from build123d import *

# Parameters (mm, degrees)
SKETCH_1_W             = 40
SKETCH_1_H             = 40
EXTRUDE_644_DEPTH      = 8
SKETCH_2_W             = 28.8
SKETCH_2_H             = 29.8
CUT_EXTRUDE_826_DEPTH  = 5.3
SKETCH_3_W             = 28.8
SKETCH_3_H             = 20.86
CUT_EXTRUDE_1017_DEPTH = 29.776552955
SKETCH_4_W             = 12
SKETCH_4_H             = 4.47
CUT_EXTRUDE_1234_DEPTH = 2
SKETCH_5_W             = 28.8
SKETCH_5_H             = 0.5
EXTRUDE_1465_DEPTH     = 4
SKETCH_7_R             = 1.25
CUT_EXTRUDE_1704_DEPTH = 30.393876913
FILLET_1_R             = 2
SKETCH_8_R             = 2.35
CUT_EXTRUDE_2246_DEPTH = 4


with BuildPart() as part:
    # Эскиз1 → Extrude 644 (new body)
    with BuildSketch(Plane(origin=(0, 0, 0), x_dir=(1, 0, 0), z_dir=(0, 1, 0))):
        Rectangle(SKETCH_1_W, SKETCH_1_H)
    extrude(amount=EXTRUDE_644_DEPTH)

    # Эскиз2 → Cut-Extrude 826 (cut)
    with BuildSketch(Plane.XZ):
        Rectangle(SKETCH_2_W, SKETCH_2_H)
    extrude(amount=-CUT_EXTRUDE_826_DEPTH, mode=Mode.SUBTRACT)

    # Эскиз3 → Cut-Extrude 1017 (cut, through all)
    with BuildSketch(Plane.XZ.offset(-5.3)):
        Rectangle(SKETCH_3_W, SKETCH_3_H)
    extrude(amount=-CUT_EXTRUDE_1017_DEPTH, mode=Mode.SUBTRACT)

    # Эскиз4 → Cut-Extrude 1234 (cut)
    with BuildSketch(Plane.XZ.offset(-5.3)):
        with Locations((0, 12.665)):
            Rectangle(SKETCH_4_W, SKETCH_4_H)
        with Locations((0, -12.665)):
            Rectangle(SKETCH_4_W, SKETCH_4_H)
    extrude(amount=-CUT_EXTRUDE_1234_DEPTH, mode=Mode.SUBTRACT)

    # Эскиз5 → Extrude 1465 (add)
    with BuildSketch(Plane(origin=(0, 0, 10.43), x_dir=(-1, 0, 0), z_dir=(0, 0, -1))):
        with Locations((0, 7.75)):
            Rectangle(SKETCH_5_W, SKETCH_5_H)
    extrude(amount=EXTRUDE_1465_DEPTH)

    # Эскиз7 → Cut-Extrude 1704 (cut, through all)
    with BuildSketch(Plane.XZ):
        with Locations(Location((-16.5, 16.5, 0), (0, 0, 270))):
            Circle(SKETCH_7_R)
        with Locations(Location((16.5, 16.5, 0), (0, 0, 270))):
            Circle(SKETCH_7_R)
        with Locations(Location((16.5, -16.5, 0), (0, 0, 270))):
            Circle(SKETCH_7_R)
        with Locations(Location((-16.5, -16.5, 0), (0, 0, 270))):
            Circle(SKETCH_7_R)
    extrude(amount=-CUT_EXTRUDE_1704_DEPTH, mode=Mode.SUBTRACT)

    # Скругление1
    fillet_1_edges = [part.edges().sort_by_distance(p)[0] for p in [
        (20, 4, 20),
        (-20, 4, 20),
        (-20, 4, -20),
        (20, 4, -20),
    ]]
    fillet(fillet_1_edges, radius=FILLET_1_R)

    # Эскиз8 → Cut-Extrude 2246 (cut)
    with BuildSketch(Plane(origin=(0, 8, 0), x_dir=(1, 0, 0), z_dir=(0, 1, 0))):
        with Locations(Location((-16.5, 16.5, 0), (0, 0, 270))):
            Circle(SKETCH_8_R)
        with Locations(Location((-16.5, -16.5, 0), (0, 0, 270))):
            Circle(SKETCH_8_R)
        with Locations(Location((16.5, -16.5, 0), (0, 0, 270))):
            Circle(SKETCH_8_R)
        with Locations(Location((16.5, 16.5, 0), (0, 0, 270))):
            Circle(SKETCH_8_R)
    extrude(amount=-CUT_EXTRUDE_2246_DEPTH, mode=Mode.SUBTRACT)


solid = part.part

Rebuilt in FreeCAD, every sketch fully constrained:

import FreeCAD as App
import Part
import Sketcher
Q = App.Units.Quantity


def edges_at(feature, points):
    """Names of the edges that pass closest to the given points."""
    edges = feature.Shape.Edges
    near = lambda p: min(range(len(edges)), key=lambda i: edges[i].distToShape(Part.Vertex(*p))[0])
    return sorted({f"Edge{near(p) + 1}" for p in points})

doc = App.newDocument("Part")
params = doc.addObject("Spreadsheet::Sheet", "Params")
for row, (alias, value) in enumerate([
    ("sketch1_width", "40 mm"),
    ("pad1_length", "8 mm"),
    ("sketch2_width", "28.8 mm"),
    ("sketch2_height", "29.8 mm"),
    ("pocket1_length", "5.3 mm"),
    ("sketch3_width", "28.8 mm"),
    ("sketch3_height", "20.86 mm"),
    ("sketch4_width", "12 mm"),
    ("sketch4_height", "4.47 mm"),
    ("pocket3_length", "2 mm"),
    ("sketch5_width", "28.8 mm"),
    ("sketch5_height", "0.5 mm"),
    ("pad2_length", "4 mm"),
    ("sketch6_diameter", "2.5 mm"),
    ("fillet_radius", "2 mm"),
    ("sketch7_diameter", "4.7 mm"),
    ("pocket5_length", "4 mm"),
], start=1):
    params.set(f"A{row}", alias)
    params.set(f"B{row}", "=" + value)
    params.setAlias(f"B{row}", alias)

body = doc.addObject("PartDesign::Body", "Body")

# Sketch on XZ plane
sketch1 = body.newObject("Sketcher::SketchObject", "Sketch")
sketch1.AttachmentSupport = (doc.getObject("XZ_Plane"), [""])
sketch1.MapMode = "FlatFace"
sketch1.addGeometry([
    Part.LineSegment(App.Vector(-20, -20, 0), App.Vector(-20, 20, 0)),
    Part.LineSegment(App.Vector(-20, 20, 0), App.Vector(20, 20, 0)),
    Part.LineSegment(App.Vector(20, 20, 0), App.Vector(20, -20, 0)),
    Part.LineSegment(App.Vector(20, -20, 0), App.Vector(-20, -20, 0)),
], False)
sketch1.addConstraint([
    Sketcher.Constraint("Coincident", 0, 2, 1, 1),
    Sketcher.Constraint("Coincident", 1, 2, 2, 1),
    Sketcher.Constraint("Coincident", 2, 2, 3, 1),
    Sketcher.Constraint("Coincident", 3, 2, 0, 1),
    Sketcher.Constraint("Vertical", 0),
    Sketcher.Constraint("Horizontal", 1),
    Sketcher.Constraint("Vertical", 2),
    Sketcher.Constraint("Horizontal", 3),
    Sketcher.Constraint("Symmetric", 0, 2, 2, 2, -1, 1),
    Sketcher.Constraint("Equal", 3, 0),
    Sketcher.Constraint("DistanceX", 1, 1, 1, 2, Q("40 mm")),
])
sketch1.setExpression("Constraints[10]", "Params.sketch1_width")
pad1 = body.newObject("PartDesign::Pad", "Pad")
pad1.Profile = sketch1
pad1.setExpression("Length", "Params.pad1_length")
pad1.Reversed = True

# Sketch on XZ plane
sketch2 = body.newObject("Sketcher::SketchObject", "Sketch001")
sketch2.AttachmentSupport = (doc.getObject("XZ_Plane"), [""])
sketch2.MapMode = "FlatFace"
sketch2.addGeometry([
    Part.LineSegment(App.Vector(-14.4, 14.9, 0), App.Vector(-14.4, -14.9, 0)),
    Part.LineSegment(App.Vector(-14.4, -14.9, 0), App.Vector(14.4, -14.9, 0)),
    Part.LineSegment(App.Vector(14.4, -14.9, 0), App.Vector(14.4, 14.9, 0)),
    Part.LineSegment(App.Vector(14.4, 14.9, 0), App.Vector(-14.4, 14.9, 0)),
], False)
sketch2.addConstraint([
    Sketcher.Constraint("Coincident", 0, 2, 1, 1),
    Sketcher.Constraint("Coincident", 1, 2, 2, 1),
    Sketcher.Constraint("Coincident", 2, 2, 3, 1),
    Sketcher.Constraint("Coincident", 3, 2, 0, 1),
    Sketcher.Constraint("Vertical", 0),
    Sketcher.Constraint("Horizontal", 1),
    Sketcher.Constraint("Vertical", 2),
    Sketcher.Constraint("Horizontal", 3),
    Sketcher.Constraint("Symmetric", 0, 2, 2, 2, -1, 1),
    Sketcher.Constraint("DistanceX", 1, 1, 1, 2, Q("28.8 mm")),
    Sketcher.Constraint("DistanceY", 0, 2, 0, 1, Q("29.8 mm")),
])
sketch2.setExpression("Constraints[9]", "Params.sketch2_width")
sketch2.setExpression("Constraints[10]", "Params.sketch2_height")
pocket1 = body.newObject("PartDesign::Pocket", "Pocket")
pocket1.Profile = sketch2
pocket1.setExpression("Length", "Params.pocket1_length")

# Sketch on XZ plane
sketch3 = body.newObject("Sketcher::SketchObject", "Sketch002")
sketch3.AttachmentSupport = (doc.getObject("XZ_Plane"), [""])
sketch3.MapMode = "FlatFace"
sketch3.AttachmentOffset = App.Placement(App.Vector(0, 0, -5.3), App.Rotation())
sketch3.addGeometry([
    Part.LineSegment(App.Vector(-14.4, 10.43, 0), App.Vector(-14.4, -10.43, 0)),
    Part.LineSegment(App.Vector(-14.4, -10.43, 0), App.Vector(14.4, -10.43, 0)),
    Part.LineSegment(App.Vector(14.4, -10.43, 0), App.Vector(14.4, 10.43, 0)),
    Part.LineSegment(App.Vector(14.4, 10.43, 0), App.Vector(-14.4, 10.43, 0)),
], False)
sketch3.addConstraint([
    Sketcher.Constraint("Coincident", 0, 2, 1, 1),
    Sketcher.Constraint("Coincident", 1, 2, 2, 1),
    Sketcher.Constraint("Coincident", 2, 2, 3, 1),
    Sketcher.Constraint("Coincident", 3, 2, 0, 1),
    Sketcher.Constraint("Vertical", 0),
    Sketcher.Constraint("Horizontal", 1),
    Sketcher.Constraint("Vertical", 2),
    Sketcher.Constraint("Horizontal", 3),
    Sketcher.Constraint("Symmetric", 0, 2, 2, 2, -1, 1),
    Sketcher.Constraint("DistanceX", 1, 1, 1, 2, Q("28.8 mm")),
    Sketcher.Constraint("DistanceY", 0, 2, 0, 1, Q("20.86 mm")),
])
sketch3.setExpression("Constraints[9]", "Params.sketch3_width")
sketch3.setExpression("Constraints[10]", "Params.sketch3_height")
pocket2 = body.newObject("PartDesign::Pocket", "Pocket001")
pocket2.Profile = sketch3
pocket2.Type = "ThroughAll"

# Sketch on XZ plane
sketch4 = body.newObject("Sketcher::SketchObject", "Sketch003")
sketch4.AttachmentSupport = (doc.getObject("XZ_Plane"), [""])
sketch4.MapMode = "FlatFace"
sketch4.AttachmentOffset = App.Placement(App.Vector(0, 0, -5.3), App.Rotation())
sketch4.addGeometry([
    Part.LineSegment(App.Vector(-6, 14.9, 0), App.Vector(-6, 10.43, 0)),  # 0
    Part.LineSegment(App.Vector(-6, 10.43, 0), App.Vector(6, 10.43, 0)),  # 1
    Part.LineSegment(App.Vector(6, 10.43, 0), App.Vector(6, 14.9, 0)),  # 2
    Part.LineSegment(App.Vector(6, 14.9, 0), App.Vector(-6, 14.9, 0)),  # 3
    Part.LineSegment(App.Vector(-6, -10.43, 0), App.Vector(-6, -14.9, 0)),  # 4
    Part.LineSegment(App.Vector(-6, -14.9, 0), App.Vector(6, -14.9, 0)),  # 5
    Part.LineSegment(App.Vector(6, -14.9, 0), App.Vector(6, -10.43, 0)),  # 6
    Part.LineSegment(App.Vector(6, -10.43, 0), App.Vector(-6, -10.43, 0)),  # 7
], False)
sketch4.addConstraint([
    Sketcher.Constraint("Coincident", 0, 2, 1, 1),
    Sketcher.Constraint("Coincident", 1, 2, 2, 1),
    Sketcher.Constraint("Coincident", 2, 2, 3, 1),
    Sketcher.Constraint("Coincident", 3, 2, 0, 1),
    Sketcher.Constraint("Coincident", 4, 2, 5, 1),
    Sketcher.Constraint("Coincident", 5, 2, 6, 1),
    Sketcher.Constraint("Coincident", 6, 2, 7, 1),
    Sketcher.Constraint("Coincident", 7, 2, 4, 1),
    Sketcher.Constraint("Vertical", 0),
    Sketcher.Constraint("Horizontal", 1),
    Sketcher.Constraint("Vertical", 2),
    Sketcher.Constraint("Horizontal", 3),
    Sketcher.Constraint("Vertical", 4),
    Sketcher.Constraint("Horizontal", 5),
    Sketcher.Constraint("Vertical", 6),
    Sketcher.Constraint("Horizontal", 7),
    Sketcher.Constraint("Symmetric", 2, 2, 4, 2, -1, 1),
    Sketcher.Constraint("Symmetric", 0, 2, 6, 2, -1, 1),
    Sketcher.Constraint("Vertical", 3, 2, 4, 2),
    Sketcher.Constraint("DistanceX", 1, 1, 1, 2, Q("12 mm")),
    Sketcher.Constraint("DistanceY", 0, 2, 0, 1, Q("4.47 mm")),
    Sketcher.Constraint("DistanceY", -1, 1, 2, 2, Q("14.9 mm")),
])
sketch4.setExpression("Constraints[19]", "Params.sketch4_width")
sketch4.setExpression("Constraints[20]", "Params.sketch4_height")
pocket3 = body.newObject("PartDesign::Pocket", "Pocket002")
pocket3.Profile = sketch4
pocket3.setExpression("Length", "Params.pocket3_length")

# Sketch on XY plane
sketch5 = body.newObject("Sketcher::SketchObject", "Sketch004")
sketch5.AttachmentSupport = (doc.getObject("XY_Plane"), [""])
sketch5.MapMode = "FlatFace"
sketch5.AttachmentOffset = App.Placement(App.Vector(0, 0, 10.43), App.Rotation())
sketch5.addGeometry([
    Part.LineSegment(App.Vector(14.4, 8, 0), App.Vector(14.4, 7.5, 0)),
    Part.LineSegment(App.Vector(14.4, 7.5, 0), App.Vector(-14.4, 7.5, 0)),
    Part.LineSegment(App.Vector(-14.4, 7.5, 0), App.Vector(-14.4, 8, 0)),
    Part.LineSegment(App.Vector(-14.4, 8, 0), App.Vector(14.4, 8, 0)),
], False)
sketch5.addConstraint([
    Sketcher.Constraint("Coincident", 0, 2, 1, 1),
    Sketcher.Constraint("Coincident", 1, 2, 2, 1),
    Sketcher.Constraint("Coincident", 2, 2, 3, 1),
    Sketcher.Constraint("Coincident", 3, 2, 0, 1),
    Sketcher.Constraint("Vertical", 0),
    Sketcher.Constraint("Horizontal", 1),
    Sketcher.Constraint("Vertical", 2),
    Sketcher.Constraint("Horizontal", 3),
    Sketcher.Constraint("DistanceX", 1, 2, 1, 1, Q("28.8 mm")),
    Sketcher.Constraint("DistanceY", 0, 2, 0, 1, Q("0.5 mm")),
    Sketcher.Constraint("DistanceY", -1, 1, 2, 2, Q("8 mm")),
    Sketcher.Constraint("DistanceX", -1, 1, 0, 2, Q("14.4 mm")),
])
sketch5.setExpression("Constraints[8]", "Params.sketch5_width")
sketch5.setExpression("Constraints[9]", "Params.sketch5_height")
pad2 = body.newObject("PartDesign::Pad", "Pad001")
pad2.Profile = sketch5
pad2.setExpression("Length", "Params.pad2_length")
pad2.Reversed = True

# Sketch on XZ plane
sketch6 = body.newObject("Sketcher::SketchObject", "Sketch005")
sketch6.AttachmentSupport = (doc.getObject("XZ_Plane"), [""])
sketch6.MapMode = "FlatFace"
sketch6.addGeometry([
    Part.Circle(App.Vector(-16.5, 16.5, 0), App.Vector(0, 0, 1), 1.25),
    Part.Circle(App.Vector(16.5, 16.5, 0), App.Vector(0, 0, 1), 1.25),
    Part.Circle(App.Vector(16.5, -16.5, 0), App.Vector(0, 0, 1), 1.25),
    Part.Circle(App.Vector(-16.5, -16.5, 0), App.Vector(0, 0, 1), 1.25),
], False)
sketch6.addConstraint([
    Sketcher.Constraint("Equal", 0, 1),
    Sketcher.Constraint("Equal", 1, 2),
    Sketcher.Constraint("Equal", 2, 3),
    Sketcher.Constraint("Symmetric", 0, 3, 2, 3, -1, 1),
    Sketcher.Constraint("Symmetric", 1, 3, 3, 3, -1, 1),
    Sketcher.Constraint("Symmetric", 0, 3, 1, 3, -2),
    Sketcher.Constraint("Diameter", 0, Q("2.5 mm")),
    Sketcher.Constraint("DistanceX", 0, 3, 1, 3, Q("33 mm")),
    Sketcher.Constraint("DistanceY", 2, 3, 1, 3, Q("33 mm")),
])
sketch6.setExpression("Constraints[6]", "Params.sketch6_diameter")
pocket4 = body.newObject("PartDesign::Pocket", "Pocket003")
pocket4.Profile = sketch6
pocket4.Type = "ThroughAll"
doc.recompute()

fillet = body.newObject("PartDesign::Fillet", "Fillet")
fillet.Base = (pocket4, edges_at(pocket4, [
    (20, 4, 20),
    (-20, 4, 20),
    (-20, 4, -20),
    (20, 4, -20),
]))
fillet.setExpression("Radius", "Params.fillet_radius")

# Sketch on XZ plane
sketch7 = body.newObject("Sketcher::SketchObject", "Sketch006")
sketch7.AttachmentSupport = (doc.getObject("XZ_Plane"), [""])
sketch7.MapMode = "FlatFace"
sketch7.AttachmentOffset = App.Placement(App.Vector(0, 0, -8), App.Rotation())
sketch7.addGeometry([
    Part.Circle(App.Vector(-16.5, -16.5, 0), App.Vector(0, 0, 1), 2.35),
    Part.Circle(App.Vector(-16.5, 16.5, 0), App.Vector(0, 0, 1), 2.35),
    Part.Circle(App.Vector(16.5, 16.5, 0), App.Vector(0, 0, 1), 2.35),
    Part.Circle(App.Vector(16.5, -16.5, 0), App.Vector(0, 0, 1), 2.35),
], False)
sketch7.addConstraint([
    Sketcher.Constraint("Equal", 0, 1),
    Sketcher.Constraint("Equal", 1, 2),
    Sketcher.Constraint("Equal", 2, 3),
    Sketcher.Constraint("Symmetric", 0, 3, 2, 3, -1, 1),
    Sketcher.Constraint("Symmetric", 1, 3, 3, 3, -1, 1),
    Sketcher.Constraint("Symmetric", 1, 3, 2, 3, -2),
    Sketcher.Constraint("Diameter", 0, Q("4.7 mm")),
    Sketcher.Constraint("DistanceY", 0, 3, 1, 3, Q("33 mm")),
    Sketcher.Constraint("DistanceX", 1, 3, 2, 3, Q("33 mm")),
])
sketch7.setExpression("Constraints[6]", "Params.sketch7_diameter")
pocket5 = body.newObject("PartDesign::Pocket", "Pocket004")
pocket5.Profile = sketch7
pocket5.setExpression("Length", "Params.pocket5_length")
pocket5.Reversed = True

doc.recompute()
